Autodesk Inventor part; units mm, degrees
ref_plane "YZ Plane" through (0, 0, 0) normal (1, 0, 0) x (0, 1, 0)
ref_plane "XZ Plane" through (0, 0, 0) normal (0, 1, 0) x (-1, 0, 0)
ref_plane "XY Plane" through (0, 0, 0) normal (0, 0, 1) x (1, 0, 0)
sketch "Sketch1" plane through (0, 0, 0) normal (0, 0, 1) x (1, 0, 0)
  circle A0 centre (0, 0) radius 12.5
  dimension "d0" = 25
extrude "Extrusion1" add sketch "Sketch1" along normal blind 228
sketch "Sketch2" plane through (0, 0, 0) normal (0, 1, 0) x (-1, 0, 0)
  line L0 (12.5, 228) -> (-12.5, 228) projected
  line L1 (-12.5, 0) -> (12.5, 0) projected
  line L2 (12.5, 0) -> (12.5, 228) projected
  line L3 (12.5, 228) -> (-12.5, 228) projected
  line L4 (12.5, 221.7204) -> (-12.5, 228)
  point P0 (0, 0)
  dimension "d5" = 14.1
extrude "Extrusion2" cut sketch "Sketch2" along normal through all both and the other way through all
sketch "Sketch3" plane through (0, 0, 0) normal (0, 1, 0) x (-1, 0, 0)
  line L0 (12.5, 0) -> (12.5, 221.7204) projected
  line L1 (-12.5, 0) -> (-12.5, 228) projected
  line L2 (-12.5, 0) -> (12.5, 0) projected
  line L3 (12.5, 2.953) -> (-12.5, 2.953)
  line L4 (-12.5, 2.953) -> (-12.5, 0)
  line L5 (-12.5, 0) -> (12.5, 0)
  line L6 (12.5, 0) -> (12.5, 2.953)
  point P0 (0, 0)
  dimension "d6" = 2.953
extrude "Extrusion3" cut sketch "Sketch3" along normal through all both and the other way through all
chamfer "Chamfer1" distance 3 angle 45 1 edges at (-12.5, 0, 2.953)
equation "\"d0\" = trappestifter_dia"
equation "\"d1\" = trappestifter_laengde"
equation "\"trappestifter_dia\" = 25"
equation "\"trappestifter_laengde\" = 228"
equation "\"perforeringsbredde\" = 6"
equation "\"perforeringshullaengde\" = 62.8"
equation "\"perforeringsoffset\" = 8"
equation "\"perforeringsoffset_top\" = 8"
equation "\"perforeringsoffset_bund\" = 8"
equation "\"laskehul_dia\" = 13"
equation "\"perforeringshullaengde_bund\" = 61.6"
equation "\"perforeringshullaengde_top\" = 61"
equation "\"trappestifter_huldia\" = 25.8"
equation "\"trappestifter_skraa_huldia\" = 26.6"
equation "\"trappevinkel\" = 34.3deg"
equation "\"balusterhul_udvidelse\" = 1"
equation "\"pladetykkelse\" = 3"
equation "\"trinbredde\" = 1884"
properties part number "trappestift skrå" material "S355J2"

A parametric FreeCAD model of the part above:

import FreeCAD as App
import Part
import Sketcher
from FreeCAD import Vector
Q = App.Units.Quantity


def edges_at(feature, points):
    """Names of the edges that pass closest to the given points."""
    edges = feature.Shape.Edges
    near = lambda p: min(range(len(edges)), key=lambda i: edges[i].distToShape(Part.Vertex(*p))[0])
    return sorted({f"Edge{near(p) + 1}" for p in points})


def add_polygon(sketch, points):
    """Adds a closed chain of lines whose ends are joined by coincident constraints."""
    first, n = sketch.GeometryCount, len(points)
    for a, b in zip(points, points[1:] + points[:1]):
        sketch.addGeometry(Part.LineSegment(App.Vector(*a, 0), App.Vector(*b, 0)), False)
    for i in range(n):
        sketch.addConstraint(Sketcher.Constraint("Coincident", first + i, 2, first + (i + 1) % n, 1))

doc = App.newDocument("Part")
body = doc.addObject("PartDesign::Body", "Body")

sketch1 = doc.addObject("Sketcher::SketchObject", "Sketch")
body.addObject(sketch1)
sketch1.AttachmentSupport = (doc.XY_Plane, [""])
sketch1.MapMode = "FlatFace"
sketch1.addGeometry(Part.Circle(Vector(0, 0, 0), Vector(0, 0, 1), 12.5), False)
sketch1.addConstraint([
    Sketcher.Constraint("Coincident", 0, 3, -1, 1),
    Sketcher.Constraint("Diameter", 0, 25.0),
])
pad1 = doc.addObject("PartDesign::Pad", "Pad")
body.addObject(pad1)
pad1.Profile = sketch1
pad1.Length = 228

sketch2 = doc.addObject("Sketcher::SketchObject", "Sketch001")
body.addObject(sketch2)
sketch2.AttachmentSupport = (doc.XZ_Plane, [""])
sketch2.MapMode = "FlatFace"
add_polygon(sketch2, [(-12.5, 221.7204), (-12.5, 228), (12.5, 228)])
sketch2.addConstraint([
    Sketcher.Constraint("Vertical", 0),
    Sketcher.Constraint("Horizontal", 1),
    Sketcher.Constraint("DistanceX", 1, 1, 1, 2, 25.0),
    Sketcher.Constraint("DistanceY", -1, 1, 0, 2, 228.0),
    Sketcher.Constraint("Angle", 2, Q("-165.9 deg")),
    Sketcher.Constraint("DistanceX", 0, 2, -1, 1, 12.5),
])
pocket1 = doc.addObject("PartDesign::Pocket", "Pocket")
body.addObject(pocket1)
pocket1.Profile = sketch2
pocket1.Type = "ThroughAll"
pocket1.Midplane = True

sketch3 = doc.addObject("Sketcher::SketchObject", "Sketch002")
body.addObject(sketch3)
sketch3.AttachmentSupport = (doc.XZ_Plane, [""])
sketch3.MapMode = "FlatFace"
add_polygon(sketch3, [(12.5, 0), (-12.5, 0), (-12.5, 2.953), (12.5, 2.953)])
sketch3.addConstraint([
    Sketcher.Constraint("Horizontal", 0),
    Sketcher.Constraint("Vertical", 1),
    Sketcher.Constraint("Horizontal", 2),
    Sketcher.Constraint("Vertical", 3),
    Sketcher.Constraint("Symmetric", 0, 2, 3, 2, -1, 1),
    Sketcher.Constraint("DistanceX", 0, 2, 0, 1, 25.0),
    Sketcher.Constraint("DistanceY", 1, 1, 1, 2, 2.953),
])
pocket2 = doc.addObject("PartDesign::Pocket", "Pocket001")
body.addObject(pocket2)
pocket2.Profile = sketch3
pocket2.Type = "ThroughAll"
pocket2.Midplane = True
doc.recompute()

chamfer = doc.addObject("PartDesign::Chamfer", "Chamfer")
body.addObject(chamfer)
chamfer.Base = (pocket2, edges_at(pocket2, [(-12.5, 0, 2.953)]))
chamfer.Size = 3

doc.recompute()
